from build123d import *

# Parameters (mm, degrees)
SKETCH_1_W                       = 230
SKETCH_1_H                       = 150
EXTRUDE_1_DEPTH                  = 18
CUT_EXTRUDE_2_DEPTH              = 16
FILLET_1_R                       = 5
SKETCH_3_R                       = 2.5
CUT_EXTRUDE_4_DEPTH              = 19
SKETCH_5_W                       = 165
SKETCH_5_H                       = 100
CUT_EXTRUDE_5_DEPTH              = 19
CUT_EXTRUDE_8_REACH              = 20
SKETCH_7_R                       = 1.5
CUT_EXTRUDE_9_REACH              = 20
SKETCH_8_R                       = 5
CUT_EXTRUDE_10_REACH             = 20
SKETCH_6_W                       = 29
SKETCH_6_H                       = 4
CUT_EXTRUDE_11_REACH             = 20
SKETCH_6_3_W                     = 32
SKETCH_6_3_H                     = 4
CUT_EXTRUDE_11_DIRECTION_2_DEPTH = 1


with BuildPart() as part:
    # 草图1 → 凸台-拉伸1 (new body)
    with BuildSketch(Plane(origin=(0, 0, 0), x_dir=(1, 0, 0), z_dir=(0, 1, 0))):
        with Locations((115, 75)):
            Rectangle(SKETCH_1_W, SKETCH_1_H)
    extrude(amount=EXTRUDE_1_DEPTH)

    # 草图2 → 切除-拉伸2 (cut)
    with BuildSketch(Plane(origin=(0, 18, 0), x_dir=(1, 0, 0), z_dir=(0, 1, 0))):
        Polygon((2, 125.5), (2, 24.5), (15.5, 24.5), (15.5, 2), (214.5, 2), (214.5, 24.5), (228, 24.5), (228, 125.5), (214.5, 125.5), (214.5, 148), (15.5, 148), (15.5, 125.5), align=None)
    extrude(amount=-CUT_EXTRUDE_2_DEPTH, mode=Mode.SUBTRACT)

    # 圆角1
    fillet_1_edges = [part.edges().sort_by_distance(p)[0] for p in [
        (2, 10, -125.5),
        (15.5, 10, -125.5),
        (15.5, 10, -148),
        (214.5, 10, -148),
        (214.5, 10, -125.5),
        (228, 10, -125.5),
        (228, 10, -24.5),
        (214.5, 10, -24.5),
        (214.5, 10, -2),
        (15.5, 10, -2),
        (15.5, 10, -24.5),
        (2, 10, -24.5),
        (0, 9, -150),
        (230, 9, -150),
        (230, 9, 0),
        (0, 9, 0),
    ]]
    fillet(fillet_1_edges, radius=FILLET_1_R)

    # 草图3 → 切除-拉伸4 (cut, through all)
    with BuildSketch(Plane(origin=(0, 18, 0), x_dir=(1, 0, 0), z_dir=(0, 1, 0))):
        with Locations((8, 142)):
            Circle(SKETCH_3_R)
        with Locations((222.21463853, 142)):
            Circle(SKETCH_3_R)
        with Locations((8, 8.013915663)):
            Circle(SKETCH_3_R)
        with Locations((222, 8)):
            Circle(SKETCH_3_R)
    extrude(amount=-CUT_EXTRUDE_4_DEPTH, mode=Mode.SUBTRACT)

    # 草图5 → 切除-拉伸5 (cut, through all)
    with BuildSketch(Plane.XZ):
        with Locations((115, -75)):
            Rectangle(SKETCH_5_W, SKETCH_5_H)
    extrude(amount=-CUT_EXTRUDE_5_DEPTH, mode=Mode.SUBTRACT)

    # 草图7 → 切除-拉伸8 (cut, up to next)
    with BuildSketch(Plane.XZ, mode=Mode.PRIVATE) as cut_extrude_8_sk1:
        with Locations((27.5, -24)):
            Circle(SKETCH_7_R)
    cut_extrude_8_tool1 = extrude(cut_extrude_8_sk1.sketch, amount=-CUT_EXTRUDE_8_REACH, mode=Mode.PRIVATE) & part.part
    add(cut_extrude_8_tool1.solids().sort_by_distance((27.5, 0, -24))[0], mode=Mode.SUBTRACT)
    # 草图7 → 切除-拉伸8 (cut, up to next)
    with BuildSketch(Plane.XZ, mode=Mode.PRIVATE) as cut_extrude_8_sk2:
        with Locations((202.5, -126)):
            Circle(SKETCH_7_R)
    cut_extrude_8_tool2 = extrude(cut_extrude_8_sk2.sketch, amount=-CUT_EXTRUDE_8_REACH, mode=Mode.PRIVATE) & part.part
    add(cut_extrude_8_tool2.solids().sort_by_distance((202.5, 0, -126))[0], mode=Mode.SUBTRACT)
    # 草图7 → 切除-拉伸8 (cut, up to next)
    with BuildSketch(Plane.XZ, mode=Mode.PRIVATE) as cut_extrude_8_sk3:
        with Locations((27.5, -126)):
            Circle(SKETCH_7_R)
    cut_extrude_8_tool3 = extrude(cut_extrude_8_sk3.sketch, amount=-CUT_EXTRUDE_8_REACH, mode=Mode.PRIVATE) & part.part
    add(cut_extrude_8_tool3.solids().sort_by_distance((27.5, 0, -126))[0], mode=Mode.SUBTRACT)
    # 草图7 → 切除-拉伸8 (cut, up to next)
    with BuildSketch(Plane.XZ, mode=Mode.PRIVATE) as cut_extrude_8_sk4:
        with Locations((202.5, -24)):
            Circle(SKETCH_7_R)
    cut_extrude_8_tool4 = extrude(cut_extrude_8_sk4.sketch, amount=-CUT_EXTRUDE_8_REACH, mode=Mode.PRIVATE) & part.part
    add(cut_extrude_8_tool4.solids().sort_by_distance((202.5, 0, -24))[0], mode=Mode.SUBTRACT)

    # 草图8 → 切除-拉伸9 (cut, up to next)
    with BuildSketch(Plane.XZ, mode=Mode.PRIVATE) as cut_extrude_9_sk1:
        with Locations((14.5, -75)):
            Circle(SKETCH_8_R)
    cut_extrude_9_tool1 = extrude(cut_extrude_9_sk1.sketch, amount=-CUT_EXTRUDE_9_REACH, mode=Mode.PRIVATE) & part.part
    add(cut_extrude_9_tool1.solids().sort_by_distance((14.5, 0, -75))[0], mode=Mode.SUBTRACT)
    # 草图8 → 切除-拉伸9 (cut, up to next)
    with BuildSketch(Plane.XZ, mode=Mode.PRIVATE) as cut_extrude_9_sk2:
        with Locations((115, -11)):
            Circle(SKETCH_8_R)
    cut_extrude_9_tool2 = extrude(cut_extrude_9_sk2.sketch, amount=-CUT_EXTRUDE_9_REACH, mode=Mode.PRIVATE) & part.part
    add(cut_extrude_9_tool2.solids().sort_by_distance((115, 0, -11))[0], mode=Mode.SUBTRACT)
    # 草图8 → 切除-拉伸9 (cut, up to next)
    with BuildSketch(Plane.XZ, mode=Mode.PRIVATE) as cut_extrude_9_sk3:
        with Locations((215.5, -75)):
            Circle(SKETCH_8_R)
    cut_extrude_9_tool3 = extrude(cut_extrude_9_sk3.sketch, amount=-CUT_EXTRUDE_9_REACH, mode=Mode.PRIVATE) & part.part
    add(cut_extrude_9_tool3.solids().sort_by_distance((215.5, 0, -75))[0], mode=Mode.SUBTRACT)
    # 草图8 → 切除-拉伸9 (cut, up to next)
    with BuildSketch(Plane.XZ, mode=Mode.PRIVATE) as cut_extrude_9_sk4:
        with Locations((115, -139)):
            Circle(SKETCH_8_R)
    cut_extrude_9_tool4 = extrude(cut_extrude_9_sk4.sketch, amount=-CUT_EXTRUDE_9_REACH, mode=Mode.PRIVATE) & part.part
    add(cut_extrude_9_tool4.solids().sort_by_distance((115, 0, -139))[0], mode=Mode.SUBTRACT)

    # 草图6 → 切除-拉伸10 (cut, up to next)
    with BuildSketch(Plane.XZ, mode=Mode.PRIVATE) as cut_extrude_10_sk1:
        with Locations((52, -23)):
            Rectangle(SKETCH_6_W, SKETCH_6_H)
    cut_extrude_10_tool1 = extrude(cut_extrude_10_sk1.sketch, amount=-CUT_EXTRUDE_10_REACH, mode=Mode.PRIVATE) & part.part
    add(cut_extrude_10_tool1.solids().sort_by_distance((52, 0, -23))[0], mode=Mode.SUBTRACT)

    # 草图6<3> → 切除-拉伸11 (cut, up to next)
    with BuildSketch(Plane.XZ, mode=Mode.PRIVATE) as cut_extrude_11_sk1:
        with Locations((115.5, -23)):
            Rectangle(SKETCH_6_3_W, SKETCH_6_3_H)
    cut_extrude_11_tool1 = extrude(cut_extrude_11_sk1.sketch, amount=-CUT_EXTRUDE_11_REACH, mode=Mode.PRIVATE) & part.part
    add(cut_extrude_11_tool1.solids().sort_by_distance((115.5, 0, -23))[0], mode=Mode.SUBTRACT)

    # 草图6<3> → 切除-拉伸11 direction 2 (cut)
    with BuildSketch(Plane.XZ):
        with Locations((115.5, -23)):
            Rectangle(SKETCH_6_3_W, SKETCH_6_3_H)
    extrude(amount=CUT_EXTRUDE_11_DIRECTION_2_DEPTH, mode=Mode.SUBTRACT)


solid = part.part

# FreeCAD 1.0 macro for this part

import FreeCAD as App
import Part
import Sketcher

V = App.Vector
Q = App.Units.Quantity


def edges_at(feature, points):
    """Names of the edges that pass closest to the given points."""
    edges = feature.Shape.Edges
    near = lambda p: min(range(len(edges)), key=lambda i: edges[i].distToShape(Part.Vertex(*p))[0])
    return sorted({f"Edge{near(p) + 1}" for p in points})


def add_polygon(sketch, points):
    """Adds a closed chain of lines whose ends are joined by coincident constraints."""
    first, n = sketch.GeometryCount, len(points)
    for a, b in zip(points, points[1:] + points[:1]):
        sketch.addGeometry(Part.LineSegment(App.Vector(*a, 0), App.Vector(*b, 0)), False)
    for i in range(n):
        sketch.addConstraint(Sketcher.Constraint("Coincident", first + i, 2, first + (i + 1) % n, 1))

doc = App.newDocument("Part")
body = doc.addObject("PartDesign::Body", "Body")

# Sketch on XZ plane
sketch1 = doc.addObject("Sketcher::SketchObject", "Sketch")
body.addObject(sketch1)
sketch1.AttachmentSupport = (doc.XZ_Plane, [""])
sketch1.MapMode = "FlatFace"
add_polygon(sketch1, [(0, -150), (0, 0), (230, 0), (230, -150)])  # lines 0-3
sketch1.addConstraint([
    Sketcher.Constraint("Vertical", 0),
    Sketcher.Constraint("Horizontal", 1),
    Sketcher.Constraint("Vertical", 2),
    Sketcher.Constraint("Horizontal", 3),
    Sketcher.Constraint("Coincident", 0, 2, -1, 1),
    Sketcher.Constraint("DistanceX", 1, 1, 1, 2, Q("230 mm")),
    Sketcher.Constraint("DistanceY", 0, 1, 0, 2, Q("150 mm")),
])
pad1 = doc.addObject("PartDesign::Pad", "Pad")
body.addObject(pad1)
pad1.Profile = sketch1
pad1.Length = 18
pad1.Reversed = True

# Sketch on XZ plane
sketch2 = doc.addObject("Sketcher::SketchObject", "Sketch001")
body.addObject(sketch2)
sketch2.AttachmentSupport = (doc.XZ_Plane, [""])
sketch2.MapMode = "FlatFace"
sketch2.AttachmentOffset = App.Placement(V(0, 0, -18), App.Rotation())
add_polygon(sketch2, [(2, -125.5), (2, -24.5), (15.5, -24.5), (15.5, -2), (214.5, -2), (214.5, -24.5), (228, -24.5), (228, -125.5), (214.5, -125.5), (214.5, -148), (15.5, -148), (15.5, -125.5)])  # lines 0-11
sketch2.addConstraint([
    Sketcher.Constraint("Vertical", 0),
    Sketcher.Constraint("Horizontal", 1),
    Sketcher.Constraint("Vertical", 2),
    Sketcher.Constraint("Horizontal", 3),
    Sketcher.Constraint("Vertical", 4),
    Sketcher.Constraint("Horizontal", 5),
    Sketcher.Constraint("Vertical", 6),
    Sketcher.Constraint("Horizontal", 7),
    Sketcher.Constraint("Vertical", 8),
    Sketcher.Constraint("Horizontal", 9),
    Sketcher.Constraint("Vertical", 10),
    Sketcher.Constraint("Horizontal", 11),
    Sketcher.Constraint("Horizontal", 1, 2, 4, 2),
    Sketcher.Constraint("Horizontal", 7, 2, 10, 2),
    Sketcher.Constraint("Vertical", 4, 2, 7, 2),
    Sketcher.Constraint("Vertical", 2, 2, 9, 2),
    Sketcher.Constraint("Equal", 1, 5),
    Sketcher.Constraint("Equal", 4, 8),
    Sketcher.Constraint("DistanceX", 3, 1, 3, 2, Q("199 mm")),
    Sketcher.Constraint("DistanceY", 0, 1, 0, 2, Q("101 mm")),
    Sketcher.Constraint("DistanceX", 1, 1, 1, 2, Q("13.5 mm")),
    Sketcher.Constraint("DistanceY", 2, 1, 2, 2, Q("22.5 mm")),
    Sketcher.Constraint("DistanceX", -1, 1, 0, 2, Q("2 mm")),
    Sketcher.Constraint("DistanceY", 2, 2, -1, 1, Q("2 mm")),
])
pocket1 = doc.addObject("PartDesign::Pocket", "Pocket")
body.addObject(pocket1)
pocket1.Profile = sketch2
pocket1.Length = 16
pocket1.Reversed = True
doc.recompute()

fillet = doc.addObject("PartDesign::Fillet", "Fillet")
body.addObject(fillet)
fillet.Base = (pocket1, edges_at(pocket1, [
    (2, 10, -125.5),
    (15.5, 10, -125.5),
    (15.5, 10, -148),
    (214.5, 10, -148),
    (214.5, 10, -125.5),
    (228, 10, -125.5),
    (228, 10, -24.5),
    (214.5, 10, -24.5),
    (214.5, 10, -2),
    (15.5, 10, -2),
    (15.5, 10, -24.5),
    (2, 10, -24.5),
    (0, 9, -150),
    (230, 9, -150),
    (230, 9, 0),
    (0, 9, 0),
]))
fillet.Radius = 5

# Sketch on XZ plane
sketch3 = doc.addObject("Sketcher::SketchObject", "Sketch002")
body.addObject(sketch3)
sketch3.AttachmentSupport = (doc.XZ_Plane, [""])
sketch3.MapMode = "FlatFace"
sketch3.AttachmentOffset = App.Placement(V(0, 0, -18), App.Rotation())
sketch3.addGeometry([
    Part.Circle(V(8, -142, 0), V(0, 0, 1), 2.5),
    Part.Circle(V(222.214639, -142, 0), V(0, 0, 1), 2.5),
    Part.Circle(V(8, -8.013916, 0), V(0, 0, 1), 2.5),
    Part.Circle(V(222, -8, 0), V(0, 0, 1), 2.5),
], False)
sketch3.addConstraint([
    Sketcher.Constraint("Equal", 0, 1),
    Sketcher.Constraint("Equal", 1, 2),
    Sketcher.Constraint("Equal", 2, 3),
    Sketcher.Constraint("Horizontal", 0, 3, 1, 3),
    Sketcher.Constraint("Vertical", 0, 3, 2, 3),
    Sketcher.Constraint("Diameter", 0, Q("5 mm")),
    Sketcher.Constraint("DistanceX", -1, 1, 0, 3, Q("8 mm")),
    Sketcher.Constraint("DistanceY", 0, 3, -1, 1, Q("142 mm")),
    Sketcher.Constraint("DistanceX", -1, 1, 3, 3, Q("222 mm")),
    Sketcher.Constraint("DistanceY", 3, 3, -1, 1, Q("8 mm")),
    Sketcher.Constraint("DistanceX", -1, 1, 1, 3, Q("222.214639 mm")),
    Sketcher.Constraint("DistanceY", 2, 3, -1, 1, Q("8.013916 mm")),
])
pocket2 = doc.addObject("PartDesign::Pocket", "Pocket001")
body.addObject(pocket2)
pocket2.Profile = sketch3
pocket2.Type = "ThroughAll"
pocket2.Reversed = True

# Sketch on XZ plane
sketch4 = doc.addObject("Sketcher::SketchObject", "Sketch003")
body.addObject(sketch4)
sketch4.AttachmentSupport = (doc.XZ_Plane, [""])
sketch4.MapMode = "FlatFace"
add_polygon(sketch4, [(32.5, -25), (32.5, -125), (197.5, -125), (197.5, -25)])  # lines 0-3
sketch4.addConstraint([
    Sketcher.Constraint("Vertical", 0),
    Sketcher.Constraint("Horizontal", 1),
    Sketcher.Constraint("Vertical", 2),
    Sketcher.Constraint("Horizontal", 3),
    Sketcher.Constraint("DistanceX", 1, 1, 1, 2, Q("165 mm")),
    Sketcher.Constraint("DistanceY", 0, 2, 0, 1, Q("100 mm")),
    Sketcher.Constraint("DistanceY", 0, 2, -1, 1, Q("125 mm")),
    Sketcher.Constraint("DistanceX", -1, 1, 0, 2, Q("32.5 mm")),
])
pocket3 = doc.addObject("PartDesign::Pocket", "Pocket002")
body.addObject(pocket3)
pocket3.Profile = sketch4
pocket3.Type = "ThroughAll"

# Sketch on XZ plane
sketch5 = doc.addObject("Sketcher::SketchObject", "Sketch004")
body.addObject(sketch5)
sketch5.AttachmentSupport = (doc.XZ_Plane, [""])
sketch5.MapMode = "FlatFace"
sketch5.addGeometry(Part.Circle(V(27.5, -24, 0), V(0, 0, 1), 1.5), False)
sketch5.addConstraint([
    Sketcher.Constraint("Diameter", 0, Q("3 mm")),
    Sketcher.Constraint("DistanceY", 0, 3, -1, 1, Q("24 mm")),
    Sketcher.Constraint("DistanceX", -1, 1, 0, 3, Q("27.5 mm")),
])
pocket4 = doc.addObject("PartDesign::Pocket", "Pocket003")
body.addObject(pocket4)
pocket4.Profile = sketch5
pocket4.Type = "UpToFirst"

# Sketch on XZ plane
sketch6 = doc.addObject("Sketcher::SketchObject", "Sketch005")
body.addObject(sketch6)
sketch6.AttachmentSupport = (doc.XZ_Plane, [""])
sketch6.MapMode = "FlatFace"
sketch6.addGeometry(Part.Circle(V(202.5, -126, 0), V(0, 0, 1), 1.5), False)
sketch6.addConstraint([
    Sketcher.Constraint("Diameter", 0, Q("3 mm")),
    Sketcher.Constraint("DistanceY", 0, 3, -1, 1, Q("126 mm")),
    Sketcher.Constraint("DistanceX", -1, 1, 0, 3, Q("202.5 mm")),
])
pocket5 = doc.addObject("PartDesign::Pocket", "Pocket004")
body.addObject(pocket5)
pocket5.Profile = sketch6
pocket5.Type = "UpToFirst"

# Sketch on XZ plane
sketch7 = doc.addObject("Sketcher::SketchObject", "Sketch006")
body.addObject(sketch7)
sketch7.AttachmentSupport = (doc.XZ_Plane, [""])
sketch7.MapMode = "FlatFace"
sketch7.addGeometry(Part.Circle(V(27.5, -126, 0), V(0, 0, 1), 1.5), False)
sketch7.addConstraint([
    Sketcher.Constraint("Diameter", 0, Q("3 mm")),
    Sketcher.Constraint("DistanceY", 0, 3, -1, 1, Q("126 mm")),
    Sketcher.Constraint("DistanceX", -1, 1, 0, 3, Q("27.5 mm")),
])
pocket6 = doc.addObject("PartDesign::Pocket", "Pocket005")
body.addObject(pocket6)
pocket6.Profile = sketch7
pocket6.Type = "UpToFirst"

# Sketch on XZ plane
sketch8 = doc.addObject("Sketcher::SketchObject", "Sketch007")
body.addObject(sketch8)
sketch8.AttachmentSupport = (doc.XZ_Plane, [""])
sketch8.MapMode = "FlatFace"
sketch8.addGeometry(Part.Circle(V(202.5, -24, 0), V(0, 0, 1), 1.5), False)
sketch8.addConstraint([
    Sketcher.Constraint("Diameter", 0, Q("3 mm")),
    Sketcher.Constraint("DistanceY", 0, 3, -1, 1, Q("24 mm")),
    Sketcher.Constraint("DistanceX", -1, 1, 0, 3, Q("202.5 mm")),
])
pocket7 = doc.addObject("PartDesign::Pocket", "Pocket006")
body.addObject(pocket7)
pocket7.Profile = sketch8
pocket7.Type = "UpToFirst"

# Sketch on XZ plane
sketch9 = doc.addObject("Sketcher::SketchObject", "Sketch008")
body.addObject(sketch9)
sketch9.AttachmentSupport = (doc.XZ_Plane, [""])
sketch9.MapMode = "FlatFace"
sketch9.addGeometry(Part.Circle(V(14.5, -75, 0), V(0, 0, 1), 5), False)
sketch9.addConstraint([
    Sketcher.Constraint("Diameter", 0, Q("10 mm")),
    Sketcher.Constraint("DistanceY", 0, 3, -1, 1, Q("75 mm")),
    Sketcher.Constraint("DistanceX", -1, 1, 0, 3, Q("14.5 mm")),
])
pocket8 = doc.addObject("PartDesign::Pocket", "Pocket007")
body.addObject(pocket8)
pocket8.Profile = sketch9
pocket8.Type = "UpToFirst"

# Sketch on XZ plane
sketch10 = doc.addObject("Sketcher::SketchObject", "Sketch009")
body.addObject(sketch10)
sketch10.AttachmentSupport = (doc.XZ_Plane, [""])
sketch10.MapMode = "FlatFace"
sketch10.addGeometry(Part.Circle(V(115, -11, 0), V(0, 0, 1), 5), False)
sketch10.addConstraint([
    Sketcher.Constraint("Diameter", 0, Q("10 mm")),
    Sketcher.Constraint("DistanceX", -1, 1, 0, 3, Q("115 mm")),
    Sketcher.Constraint("DistanceY", 0, 3, -1, 1, Q("11 mm")),
])
pocket9 = doc.addObject("PartDesign::Pocket", "Pocket008")
body.addObject(pocket9)
pocket9.Profile = sketch10
pocket9.Type = "UpToFirst"

# Sketch on XZ plane
sketch11 = doc.addObject("Sketcher::SketchObject", "Sketch010")
body.addObject(sketch11)
sketch11.AttachmentSupport = (doc.XZ_Plane, [""])
sketch11.MapMode = "FlatFace"
sketch11.addGeometry(Part.Circle(V(215.5, -75, 0), V(0, 0, 1), 5), False)
sketch11.addConstraint([
    Sketcher.Constraint("Diameter", 0, Q("10 mm")),
    Sketcher.Constraint("DistanceY", 0, 3, -1, 1, Q("75 mm")),
    Sketcher.Constraint("DistanceX", -1, 1, 0, 3, Q("215.5 mm")),
])
pocket10 = doc.addObject("PartDesign::Pocket", "Pocket009")
body.addObject(pocket10)
pocket10.Profile = sketch11
pocket10.Type = "UpToFirst"

# Sketch on XZ plane
sketch12 = doc.addObject("Sketcher::SketchObject", "Sketch011")
body.addObject(sketch12)
sketch12.AttachmentSupport = (doc.XZ_Plane, [""])
sketch12.MapMode = "FlatFace"
sketch12.addGeometry(Part.Circle(V(115, -139, 0), V(0, 0, 1), 5), False)
sketch12.addConstraint([
    Sketcher.Constraint("Diameter", 0, Q("10 mm")),
    Sketcher.Constraint("DistanceX", -1, 1, 0, 3, Q("115 mm")),
    Sketcher.Constraint("DistanceY", 0, 3, -1, 1, Q("139 mm")),
])
pocket11 = doc.addObject("PartDesign::Pocket", "Pocket010")
body.addObject(pocket11)
pocket11.Profile = sketch12
pocket11.Type = "UpToFirst"

# Sketch on XZ plane
sketch13 = doc.addObject("Sketcher::SketchObject", "Sketch012")
body.addObject(sketch13)
sketch13.AttachmentSupport = (doc.XZ_Plane, [""])
sketch13.MapMode = "FlatFace"
add_polygon(sketch13, [(37.5, -21), (37.5, -25), (66.5, -25), (66.5, -21)])  # lines 0-3
sketch13.addConstraint([
    Sketcher.Constraint("Vertical", 0),
    Sketcher.Constraint("Horizontal", 1),
    Sketcher.Constraint("Vertical", 2),
    Sketcher.Constraint("Horizontal", 3),
    Sketcher.Constraint("DistanceX", 1, 1, 1, 2, Q("29 mm")),
    Sketcher.Constraint("DistanceY", 0, 2, 0, 1, Q("4 mm")),
    Sketcher.Constraint("DistanceY", 0, 2, -1, 1, Q("25 mm")),
    Sketcher.Constraint("DistanceX", -1, 1, 0, 2, Q("37.5 mm")),
])
pocket12 = doc.addObject("PartDesign::Pocket", "Pocket011")
body.addObject(pocket12)
pocket12.Profile = sketch13
pocket12.Type = "UpToFirst"

# Sketch on XZ plane
sketch14 = doc.addObject("Sketcher::SketchObject", "Sketch013")
body.addObject(sketch14)
sketch14.AttachmentSupport = (doc.XZ_Plane, [""])
sketch14.MapMode = "FlatFace"
add_polygon(sketch14, [(99.5, -21), (99.5, -25), (131.5, -25), (131.5, -21)])  # lines 0-3
sketch14.addConstraint([
    Sketcher.Constraint("Vertical", 0),
    Sketcher.Constraint("Horizontal", 1),
    Sketcher.Constraint("Vertical", 2),
    Sketcher.Constraint("Horizontal", 3),
    Sketcher.Constraint("DistanceX", 1, 1, 1, 2, Q("32 mm")),
    Sketcher.Constraint("DistanceY", 0, 2, 0, 1, Q("4 mm")),
    Sketcher.Constraint("DistanceY", 0, 2, -1, 1, Q("25 mm")),
    Sketcher.Constraint("DistanceX", -1, 1, 0, 2, Q("99.5 mm")),
])
pocket13 = doc.addObject("PartDesign::Pocket", "Pocket012")
body.addObject(pocket13)
pocket13.Profile = sketch14
pocket13.Type = "UpToFirst"

# Sketch on XZ plane
sketch15 = doc.addObject("Sketcher::SketchObject", "Sketch014")
body.addObject(sketch15)
sketch15.AttachmentSupport = (doc.XZ_Plane, [""])
sketch15.MapMode = "FlatFace"
add_polygon(sketch15, [(99.5, -21), (99.5, -25), (131.5, -25), (131.5, -21)])  # lines 0-3
sketch15.addConstraint([
    Sketcher.Constraint("Vertical", 0),
    Sketcher.Constraint("Horizontal", 1),
    Sketcher.Constraint("Vertical", 2),
    Sketcher.Constraint("Horizontal", 3),
    Sketcher.Constraint("DistanceX", 1, 1, 1, 2, Q("32 mm")),
    Sketcher.Constraint("DistanceY", 0, 2, 0, 1, Q("4 mm")),
    Sketcher.Constraint("DistanceY", 0, 2, -1, 1, Q("25 mm")),
    Sketcher.Constraint("DistanceX", -1, 1, 0, 2, Q("99.5 mm")),
])
pocket14 = doc.addObject("PartDesign::Pocket", "Pocket013")
body.addObject(pocket14)
pocket14.Profile = sketch15
pocket14.Length = 1
pocket14.Reversed = True

doc.recompute()
